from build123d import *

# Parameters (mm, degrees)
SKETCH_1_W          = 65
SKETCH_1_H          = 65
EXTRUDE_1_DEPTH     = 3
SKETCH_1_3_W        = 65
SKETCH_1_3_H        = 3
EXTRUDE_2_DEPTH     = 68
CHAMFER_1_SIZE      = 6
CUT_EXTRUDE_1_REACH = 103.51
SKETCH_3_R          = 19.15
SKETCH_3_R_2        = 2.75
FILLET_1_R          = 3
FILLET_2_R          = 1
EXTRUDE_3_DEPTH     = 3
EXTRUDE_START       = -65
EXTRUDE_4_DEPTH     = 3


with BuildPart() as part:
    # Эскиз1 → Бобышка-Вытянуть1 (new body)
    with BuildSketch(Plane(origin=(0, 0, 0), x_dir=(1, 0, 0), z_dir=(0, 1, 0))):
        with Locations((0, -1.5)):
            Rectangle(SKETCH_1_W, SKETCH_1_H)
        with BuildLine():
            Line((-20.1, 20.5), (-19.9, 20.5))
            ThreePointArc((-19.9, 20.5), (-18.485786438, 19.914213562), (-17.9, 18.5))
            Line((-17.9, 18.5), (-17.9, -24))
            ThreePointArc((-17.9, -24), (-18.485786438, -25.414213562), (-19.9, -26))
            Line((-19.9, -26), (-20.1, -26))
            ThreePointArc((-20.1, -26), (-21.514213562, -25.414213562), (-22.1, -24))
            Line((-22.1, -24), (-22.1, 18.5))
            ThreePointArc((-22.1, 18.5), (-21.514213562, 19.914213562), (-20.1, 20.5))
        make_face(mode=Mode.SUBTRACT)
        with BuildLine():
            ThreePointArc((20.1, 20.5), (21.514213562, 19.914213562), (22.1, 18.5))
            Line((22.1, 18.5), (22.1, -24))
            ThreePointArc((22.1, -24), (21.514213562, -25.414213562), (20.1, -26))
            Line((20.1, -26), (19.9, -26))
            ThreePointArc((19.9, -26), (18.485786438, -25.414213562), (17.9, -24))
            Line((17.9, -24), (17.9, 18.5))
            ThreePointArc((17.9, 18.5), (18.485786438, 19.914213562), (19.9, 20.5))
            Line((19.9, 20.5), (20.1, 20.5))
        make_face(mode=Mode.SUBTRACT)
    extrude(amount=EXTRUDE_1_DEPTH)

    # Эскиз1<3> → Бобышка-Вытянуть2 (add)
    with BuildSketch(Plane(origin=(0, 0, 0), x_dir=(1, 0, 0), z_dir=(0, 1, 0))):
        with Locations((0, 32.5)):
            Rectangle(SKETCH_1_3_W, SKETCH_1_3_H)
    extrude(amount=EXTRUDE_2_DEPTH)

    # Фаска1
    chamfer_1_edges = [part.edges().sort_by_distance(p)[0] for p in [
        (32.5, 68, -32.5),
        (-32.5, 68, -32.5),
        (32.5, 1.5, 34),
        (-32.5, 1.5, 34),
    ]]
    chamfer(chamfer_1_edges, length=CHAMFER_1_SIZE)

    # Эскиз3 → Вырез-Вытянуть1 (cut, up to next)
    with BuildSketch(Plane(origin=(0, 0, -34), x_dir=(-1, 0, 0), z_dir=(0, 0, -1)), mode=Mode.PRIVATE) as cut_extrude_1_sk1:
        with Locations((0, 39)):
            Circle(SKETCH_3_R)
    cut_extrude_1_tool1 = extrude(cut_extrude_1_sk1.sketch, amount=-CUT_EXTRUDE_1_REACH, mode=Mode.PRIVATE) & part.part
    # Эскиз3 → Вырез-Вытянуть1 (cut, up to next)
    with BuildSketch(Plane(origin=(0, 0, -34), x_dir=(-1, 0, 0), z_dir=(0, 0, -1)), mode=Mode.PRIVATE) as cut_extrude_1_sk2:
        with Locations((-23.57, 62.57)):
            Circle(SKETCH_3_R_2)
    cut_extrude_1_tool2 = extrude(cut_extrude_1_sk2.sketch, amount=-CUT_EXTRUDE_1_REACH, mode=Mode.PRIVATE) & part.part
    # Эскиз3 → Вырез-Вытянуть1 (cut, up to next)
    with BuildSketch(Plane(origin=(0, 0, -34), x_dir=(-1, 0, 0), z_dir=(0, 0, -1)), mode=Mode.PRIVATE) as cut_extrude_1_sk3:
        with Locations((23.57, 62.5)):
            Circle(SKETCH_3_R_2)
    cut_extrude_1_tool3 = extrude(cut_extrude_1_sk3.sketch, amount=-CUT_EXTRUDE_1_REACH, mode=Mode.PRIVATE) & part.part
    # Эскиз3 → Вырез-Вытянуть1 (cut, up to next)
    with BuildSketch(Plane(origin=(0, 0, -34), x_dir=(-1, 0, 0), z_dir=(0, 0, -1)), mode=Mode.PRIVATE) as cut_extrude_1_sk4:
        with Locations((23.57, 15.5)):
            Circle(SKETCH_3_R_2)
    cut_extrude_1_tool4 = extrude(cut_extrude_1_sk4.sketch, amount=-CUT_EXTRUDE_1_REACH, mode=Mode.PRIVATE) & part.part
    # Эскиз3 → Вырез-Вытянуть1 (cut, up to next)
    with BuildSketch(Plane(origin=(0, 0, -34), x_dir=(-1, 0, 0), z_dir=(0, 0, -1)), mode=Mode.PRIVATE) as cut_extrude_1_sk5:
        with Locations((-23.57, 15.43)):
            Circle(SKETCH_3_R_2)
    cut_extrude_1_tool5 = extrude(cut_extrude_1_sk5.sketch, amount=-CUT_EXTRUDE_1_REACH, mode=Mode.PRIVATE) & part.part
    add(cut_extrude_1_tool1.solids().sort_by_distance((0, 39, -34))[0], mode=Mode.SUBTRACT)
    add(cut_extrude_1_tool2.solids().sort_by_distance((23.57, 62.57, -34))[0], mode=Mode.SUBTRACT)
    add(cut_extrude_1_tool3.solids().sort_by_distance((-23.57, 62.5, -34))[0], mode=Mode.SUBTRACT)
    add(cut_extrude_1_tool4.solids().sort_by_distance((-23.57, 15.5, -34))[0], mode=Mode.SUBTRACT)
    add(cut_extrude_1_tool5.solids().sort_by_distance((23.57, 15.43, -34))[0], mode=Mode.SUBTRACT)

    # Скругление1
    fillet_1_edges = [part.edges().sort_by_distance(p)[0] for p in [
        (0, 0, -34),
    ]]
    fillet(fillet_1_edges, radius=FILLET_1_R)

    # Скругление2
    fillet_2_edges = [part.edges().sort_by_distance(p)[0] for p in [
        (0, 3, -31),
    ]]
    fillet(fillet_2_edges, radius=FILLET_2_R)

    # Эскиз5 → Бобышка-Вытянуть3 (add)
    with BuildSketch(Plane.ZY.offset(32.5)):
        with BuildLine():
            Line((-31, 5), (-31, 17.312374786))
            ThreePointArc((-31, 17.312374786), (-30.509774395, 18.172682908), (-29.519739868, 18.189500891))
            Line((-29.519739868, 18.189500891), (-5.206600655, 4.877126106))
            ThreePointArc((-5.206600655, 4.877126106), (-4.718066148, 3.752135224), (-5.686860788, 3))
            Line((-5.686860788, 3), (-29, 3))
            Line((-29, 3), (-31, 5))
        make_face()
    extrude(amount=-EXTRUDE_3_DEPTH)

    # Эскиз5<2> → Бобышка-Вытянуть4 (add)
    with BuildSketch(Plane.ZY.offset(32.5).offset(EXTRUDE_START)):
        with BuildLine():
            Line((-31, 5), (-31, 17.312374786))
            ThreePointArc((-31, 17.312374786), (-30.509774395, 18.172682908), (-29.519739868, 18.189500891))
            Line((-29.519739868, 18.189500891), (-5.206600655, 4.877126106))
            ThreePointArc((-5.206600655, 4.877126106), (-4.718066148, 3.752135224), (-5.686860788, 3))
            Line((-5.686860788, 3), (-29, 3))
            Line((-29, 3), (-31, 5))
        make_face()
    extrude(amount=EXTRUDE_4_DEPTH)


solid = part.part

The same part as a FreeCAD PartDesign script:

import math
import FreeCAD as App
import Part
import Sketcher
from FreeCAD import Vector
Q = App.Units.Quantity


def edges_at(feature, points):
    """Names of the edges that pass closest to the given points."""
    edges = feature.Shape.Edges
    near = lambda p: min(range(len(edges)), key=lambda i: edges[i].distToShape(Part.Vertex(*p))[0])
    return sorted({f"Edge{near(p) + 1}" for p in points})


def add_polygon(sketch, points):
    """Adds a closed chain of lines whose ends are joined by coincident constraints."""
    first, n = sketch.GeometryCount, len(points)
    for a, b in zip(points, points[1:] + points[:1]):
        sketch.addGeometry(Part.LineSegment(App.Vector(*a, 0), App.Vector(*b, 0)), False)
    for i in range(n):
        sketch.addConstraint(Sketcher.Constraint("Coincident", first + i, 2, first + (i + 1) % n, 1))

doc = App.newDocument("Part")
body = doc.addObject("PartDesign::Body", "Body")

# Sketch on XZ plane
sketch1 = body.newObject("Sketcher::SketchObject", "Sketch")
sketch1.AttachmentSupport = (doc.getObject("XZ_Plane"), [""])
sketch1.MapMode = "FlatFace"
add_polygon(sketch1, [(-32.5, -31), (-32.5, 34), (32.5, 34), (32.5, -31)])  # lines 0-3
sketch1.addGeometry(Part.ArcOfCircle(Part.Circle(Vector(-20.1, -18.5, 0), Vector(0, 0, 1), 2), math.radians(-180), math.radians(-90)), False)  # 4
sketch1.addGeometry(Part.LineSegment(Vector(-20.1, -20.5, 0), Vector(-19.9, -20.5, 0)), False)  # 5
sketch1.addGeometry(Part.ArcOfCircle(Part.Circle(Vector(-19.9, -18.5, 0), Vector(0, 0, 1), 2), math.radians(-90), math.radians(0)), False)  # 6
sketch1.addGeometry(Part.LineSegment(Vector(-17.9, -18.5, 0), Vector(-17.9, 24, 0)), False)  # 7
sketch1.addGeometry(Part.ArcOfCircle(Part.Circle(Vector(-19.9, 24, 0), Vector(0, 0, 1), 2), math.radians(0), math.radians(90)), False)  # 8
sketch1.addGeometry(Part.LineSegment(Vector(-19.9, 26, 0), Vector(-20.1, 26, 0)), False)  # 9
sketch1.addGeometry(Part.ArcOfCircle(Part.Circle(Vector(-20.1, 24, 0), Vector(0, 0, 1), 2), math.radians(90), math.radians(180)), False)  # 10
sketch1.addGeometry(Part.LineSegment(Vector(-22.1, 24, 0), Vector(-22.1, -18.5, 0)), False)  # 11
sketch1.addGeometry(Part.LineSegment(Vector(19.9, -20.5, 0), Vector(20.1, -20.5, 0)), False)  # 12
sketch1.addGeometry(Part.ArcOfCircle(Part.Circle(Vector(20.1, -18.5, 0), Vector(0, 0, 1), 2), math.radians(-90), math.radians(0)), False)  # 13
sketch1.addGeometry(Part.LineSegment(Vector(22.1, -18.5, 0), Vector(22.1, 24, 0)), False)  # 14
sketch1.addGeometry(Part.ArcOfCircle(Part.Circle(Vector(20.1, 24, 0), Vector(0, 0, 1), 2), math.radians(0), math.radians(90)), False)  # 15
sketch1.addGeometry(Part.LineSegment(Vector(20.1, 26, 0), Vector(19.9, 26, 0)), False)  # 16
sketch1.addGeometry(Part.ArcOfCircle(Part.Circle(Vector(19.9, 24, 0), Vector(0, 0, 1), 2), math.radians(90), math.radians(180)), False)  # 17
sketch1.addGeometry(Part.LineSegment(Vector(17.9, 24, 0), Vector(17.9, -18.5, 0)), False)  # 18
sketch1.addGeometry(Part.ArcOfCircle(Part.Circle(Vector(19.9, -18.5, 0), Vector(0, 0, 1), 2), math.radians(-180), math.radians(-90)), False)  # 19
sketch1.addConstraint(Sketcher.Constraint("Tangent", 4, 2, 5, 1))
sketch1.addConstraint(Sketcher.Constraint("Tangent", 5, 2, 6, 1))
sketch1.addConstraint(Sketcher.Constraint("Tangent", 6, 2, 7, 1))
sketch1.addConstraint(Sketcher.Constraint("Tangent", 7, 2, 8, 1))
sketch1.addConstraint(Sketcher.Constraint("Tangent", 8, 2, 9, 1))
sketch1.addConstraint(Sketcher.Constraint("Tangent", 9, 2, 10, 1))
sketch1.addConstraint(Sketcher.Constraint("Tangent", 10, 2, 11, 1))
sketch1.addConstraint(Sketcher.Constraint("Tangent", 11, 2, 4, 1))
sketch1.addConstraint(Sketcher.Constraint("Tangent", 12, 2, 13, 1))
sketch1.addConstraint(Sketcher.Constraint("Tangent", 13, 2, 14, 1))
sketch1.addConstraint(Sketcher.Constraint("Tangent", 14, 2, 15, 1))
sketch1.addConstraint(Sketcher.Constraint("Tangent", 15, 2, 16, 1))
sketch1.addConstraint(Sketcher.Constraint("Tangent", 16, 2, 17, 1))
sketch1.addConstraint(Sketcher.Constraint("Tangent", 17, 2, 18, 1))
sketch1.addConstraint(Sketcher.Constraint("Tangent", 18, 2, 19, 1))
sketch1.addConstraint(Sketcher.Constraint("Tangent", 19, 2, 12, 1))
sketch1.addConstraint(Sketcher.Constraint("Vertical", 0))
sketch1.addConstraint(Sketcher.Constraint("Horizontal", 1))
sketch1.addConstraint(Sketcher.Constraint("Vertical", 2))
sketch1.addConstraint(Sketcher.Constraint("Horizontal", 3))
sketch1.addConstraint(Sketcher.Constraint("Horizontal", 5))
sketch1.addConstraint(Sketcher.Constraint("Vertical", 7))
sketch1.addConstraint(Sketcher.Constraint("Horizontal", 9))
sketch1.addConstraint(Sketcher.Constraint("Vertical", 11))
sketch1.addConstraint(Sketcher.Constraint("Horizontal", 12))
sketch1.addConstraint(Sketcher.Constraint("Vertical", 14))
sketch1.addConstraint(Sketcher.Constraint("Horizontal", 16))
sketch1.addConstraint(Sketcher.Constraint("Vertical", 18))
sketch1.addConstraint(Sketcher.Constraint("Equal", 4, 6))
sketch1.addConstraint(Sketcher.Constraint("Equal", 6, 8))
sketch1.addConstraint(Sketcher.Constraint("Equal", 8, 10))
sketch1.addConstraint(Sketcher.Constraint("Equal", 10, 13))
sketch1.addConstraint(Sketcher.Constraint("Equal", 13, 15))
sketch1.addConstraint(Sketcher.Constraint("Equal", 15, 17))
sketch1.addConstraint(Sketcher.Constraint("Equal", 17, 19))
sketch1.addConstraint(Sketcher.Constraint("Symmetric", 4, 3, 13, 3, -2))
sketch1.addConstraint(Sketcher.Constraint("Symmetric", 8, 3, 17, 3, -2))
sketch1.addConstraint(Sketcher.Constraint("Equal", 3, 0))
sketch1.addConstraint(Sketcher.Constraint("Radius", 4, 2.0))
sketch1.addConstraint(Sketcher.Constraint("DistanceX", 1, 1, 1, 2, 65.0))
sketch1.addConstraint(Sketcher.Constraint("DistanceX", 5, 1, 5, 2, 0.2))
sketch1.addConstraint(Sketcher.Constraint("DistanceY", 7, 1, 7, 2, 42.5))
sketch1.addConstraint(Sketcher.Constraint("DistanceY", -1, 1, 8, 3, 24.0))
sketch1.addConstraint(Sketcher.Constraint("DistanceY", -1, 1, 0, 2, 34.0))
sketch1.addConstraint(Sketcher.Constraint("DistanceX", 6, 3, 13, 3, 40.0))
sketch1.addConstraint(Sketcher.Constraint("DistanceX", 0, 2, -1, 1, 32.5))
pad1 = body.newObject("PartDesign::Pad", "Pad")
pad1.Profile = sketch1
pad1.Length = 3
pad1.Reversed = True

# Sketch on XZ plane
sketch2 = body.newObject("Sketcher::SketchObject", "Sketch001")
sketch2.AttachmentSupport = (doc.getObject("XZ_Plane"), [""])
sketch2.MapMode = "FlatFace"
add_polygon(sketch2, [(-32.5, -34), (-32.5, -31), (32.5, -31), (32.5, -34)])  # lines 0-3
sketch2.addConstraint(Sketcher.Constraint("Vertical", 0))
sketch2.addConstraint(Sketcher.Constraint("Horizontal", 1))
sketch2.addConstraint(Sketcher.Constraint("Vertical", 2))
sketch2.addConstraint(Sketcher.Constraint("Horizontal", 3))
sketch2.addConstraint(Sketcher.Constraint("DistanceX", 1, 1, 1, 2, 65.0))
sketch2.addConstraint(Sketcher.Constraint("DistanceY", 0, 1, 0, 2, 3.0))
sketch2.addConstraint(Sketcher.Constraint("DistanceY", 0, 2, -1, 1, 31.0))
sketch2.addConstraint(Sketcher.Constraint("DistanceX", 0, 2, -1, 1, 32.5))
pad2 = body.newObject("PartDesign::Pad", "Pad001")
pad2.Profile = sketch2
pad2.Length = 68
pad2.Reversed = True
doc.recompute()

chamfer = body.newObject("PartDesign::Chamfer", "Chamfer")
chamfer.Base = (pad2, edges_at(pad2, [
    (32.5, 68, -32.5),
    (-32.5, 68, -32.5),
    (32.5, 1.5, 34),
    (-32.5, 1.5, 34),
]))
chamfer.Size = 6

# Sketch on XY plane
sketch3 = body.newObject("Sketcher::SketchObject", "Sketch002")
sketch3.AttachmentSupport = (doc.getObject("XY_Plane"), [""])
sketch3.MapMode = "FlatFace"
sketch3.AttachmentOffset = App.Placement(Vector(0, 0, -34), App.Rotation())
sketch3.addGeometry(Part.Circle(Vector(0, 39, 0), Vector(0, 0, 1), 19), False)
sketch3.addConstraint(Sketcher.Constraint("PointOnObject", 0, 3, -2))
sketch3.addConstraint(Sketcher.Constraint("Diameter", 0, 38.3))
sketch3.addConstraint(Sketcher.Constraint("DistanceY", -1, 1, 0, 3, 39.0))
pocket1 = body.newObject("PartDesign::Pocket", "Pocket")
pocket1.Profile = sketch3
pocket1.Type = "UpToFirst"
pocket1.Reversed = True

# Sketch on XY plane
sketch4 = body.newObject("Sketcher::SketchObject", "Sketch003")
sketch4.AttachmentSupport = (doc.getObject("XY_Plane"), [""])
sketch4.MapMode = "FlatFace"
sketch4.AttachmentOffset = App.Placement(Vector(0, 0, -34), App.Rotation())
sketch4.addGeometry(Part.Circle(Vector(23.6, 62.6, 0), Vector(0, 0, 1), 2.8), False)
sketch4.addConstraint(Sketcher.Constraint("Diameter", 0, 5.5))
sketch4.addConstraint(Sketcher.Constraint("DistanceX", -1, 1, 0, 3, 23.57))
sketch4.addConstraint(Sketcher.Constraint("DistanceY", -1, 1, 0, 3, 62.57))
pocket2 = body.newObject("PartDesign::Pocket", "Pocket001")
pocket2.Profile = sketch4
pocket2.Type = "UpToFirst"
pocket2.Reversed = True

# Sketch on XY plane
sketch5 = body.newObject("Sketcher::SketchObject", "Sketch004")
sketch5.AttachmentSupport = (doc.getObject("XY_Plane"), [""])
sketch5.MapMode = "FlatFace"
sketch5.AttachmentOffset = App.Placement(Vector(0, 0, -34), App.Rotation())
sketch5.addGeometry(Part.Circle(Vector(-23.6, 62.5, 0), Vector(0, 0, 1), 2.8), False)
sketch5.addConstraint(Sketcher.Constraint("Diameter", 0, 5.5))
sketch5.addConstraint(Sketcher.Constraint("DistanceY", -1, 1, 0, 3, 62.5))
sketch5.addConstraint(Sketcher.Constraint("DistanceX", 0, 3, -1, 1, 23.57))
pocket3 = body.newObject("PartDesign::Pocket", "Pocket002")
pocket3.Profile = sketch5
pocket3.Type = "UpToFirst"
pocket3.Reversed = True

# Sketch on XY plane
sketch6 = body.newObject("Sketcher::SketchObject", "Sketch005")
sketch6.AttachmentSupport = (doc.getObject("XY_Plane"), [""])
sketch6.MapMode = "FlatFace"
sketch6.AttachmentOffset = App.Placement(Vector(0, 0, -34), App.Rotation())
sketch6.addGeometry(Part.Circle(Vector(-23.6, 15.5, 0), Vector(0, 0, 1), 2.8), False)
sketch6.addConstraint(Sketcher.Constraint("Diameter", 0, 5.5))
sketch6.addConstraint(Sketcher.Constraint("DistanceY", -1, 1, 0, 3, 15.5))
sketch6.addConstraint(Sketcher.Constraint("DistanceX", 0, 3, -1, 1, 23.57))
pocket4 = body.newObject("PartDesign::Pocket", "Pocket003")
pocket4.Profile = sketch6
pocket4.Type = "UpToFirst"
pocket4.Reversed = True

# Sketch on XY plane
sketch7 = body.newObject("Sketcher::SketchObject", "Sketch006")
sketch7.AttachmentSupport = (doc.getObject("XY_Plane"), [""])
sketch7.MapMode = "FlatFace"
sketch7.AttachmentOffset = App.Placement(Vector(0, 0, -34), App.Rotation())
sketch7.addGeometry(Part.Circle(Vector(23.6, 15.4, 0), Vector(0, 0, 1), 2.8), False)
sketch7.addConstraint(Sketcher.Constraint("Diameter", 0, 5.5))
sketch7.addConstraint(Sketcher.Constraint("DistanceX", -1, 1, 0, 3, 23.57))
sketch7.addConstraint(Sketcher.Constraint("DistanceY", -1, 1, 0, 3, 15.43))
pocket5 = body.newObject("PartDesign::Pocket", "Pocket004")
pocket5.Profile = sketch7
pocket5.Type = "UpToFirst"
pocket5.Reversed = True
doc.recompute()

fillet = body.newObject("PartDesign::Fillet", "Fillet")
fillet.Base = (pocket5, edges_at(pocket5, [(0, 0, -34)]))
fillet.Radius = 3
doc.recompute()

fillet2 = body.newObject("PartDesign::Fillet", "Fillet001")
fillet2.Base = (fillet, edges_at(fillet, [(0, 3, -31)]))
fillet2.Radius = 1

# Sketch on YZ plane
sketch8 = body.newObject("Sketcher::SketchObject", "Sketch007")
sketch8.AttachmentSupport = (doc.getObject("YZ_Plane"), [""])
sketch8.MapMode = "FlatFace"
sketch8.AttachmentOffset = App.Placement(Vector(0, 0, -32.5), App.Rotation())
sketch8.addGeometry(Part.LineSegment(Vector(17.3, -31, 0), Vector(5, -31, 0)), False)
sketch8.addGeometry(Part.LineSegment(Vector(5, -31, 0), Vector(3, -29, 0)), False)
sketch8.addGeometry(Part.LineSegment(Vector(3, -29, 0), Vector(3, -5.7, 0)), False)
sketch8.addGeometry(Part.ArcOfCircle(Part.Circle(Vector(4, -5.7, 0), Vector(0, 0, 1), 1), math.radians(29), math.radians(180)), False)
sketch8.addGeometry(Part.LineSegment(Vector(4.9, -5.2, 0), Vector(18.2, -29.5, 0)), False)
sketch8.addGeometry(Part.ArcOfCircle(Part.Circle(Vector(17.3, -30, 0), Vector(0, 0, 1), 1), math.radians(-90), math.radians(29)), False)
sketch8.addConstraint(Sketcher.Constraint("Coincident", 0, 2, 1, 1))
sketch8.addConstraint(Sketcher.Constraint("Coincident", 1, 2, 2, 1))
sketch8.addConstraint(Sketcher.Constraint("Tangent", 2, 2, 3, 2))
sketch8.addConstraint(Sketcher.Constraint("Tangent", 3, 1, 4, 1))
sketch8.addConstraint(Sketcher.Constraint("Tangent", 4, 2, 5, 2))
sketch8.addConstraint(Sketcher.Constraint("Tangent", 5, 1, 0, 1))
sketch8.addConstraint(Sketcher.Constraint("Horizontal", 0))
sketch8.addConstraint(Sketcher.Constraint("Vertical", 2))
sketch8.addConstraint(Sketcher.Constraint("Equal", 3, 5))
sketch8.addConstraint(Sketcher.Constraint("Radius", 3, 1.0))
sketch8.addConstraint(Sketcher.Constraint("Angle", 1, Q("135 deg")))
sketch8.addConstraint(Sketcher.Constraint("DistanceX", -1, 1, 3, 3, 4.0))
sketch8.addConstraint(Sketcher.Constraint("DistanceY", 5, 3, -1, 1, 30.0))
sketch8.addConstraint(Sketcher.Constraint("DistanceX", -1, 1, 0, 2, 5.0))
sketch8.addConstraint(Sketcher.Constraint("DistanceY", 2, 1, 2, 2, 23.313139))
sketch8.addConstraint(Sketcher.Constraint("DistanceY", 3, 1, -1, 1, 5.206601))
pad3 = body.newObject("PartDesign::Pad", "Pad002")
pad3.Profile = sketch8
pad3.Length = 3

# Sketch on YZ plane
sketch9 = body.newObject("Sketcher::SketchObject", "Sketch008")
sketch9.AttachmentSupport = (doc.getObject("YZ_Plane"), [""])
sketch9.MapMode = "FlatFace"
sketch9.AttachmentOffset = App.Placement(Vector(0, 0, 32.5), App.Rotation())
sketch9.addGeometry(Part.LineSegment(Vector(17.3, -31, 0), Vector(5, -31, 0)), False)
sketch9.addGeometry(Part.LineSegment(Vector(5, -31, 0), Vector(3, -29, 0)), False)
sketch9.addGeometry(Part.LineSegment(Vector(3, -29, 0), Vector(3, -5.7, 0)), False)
sketch9.addGeometry(Part.ArcOfCircle(Part.Circle(Vector(4, -5.7, 0), Vector(0, 0, 1), 1), math.radians(29), math.radians(180)), False)
sketch9.addGeometry(Part.LineSegment(Vector(4.9, -5.2, 0), Vector(18.2, -29.5, 0)), False)
sketch9.addGeometry(Part.ArcOfCircle(Part.Circle(Vector(17.3, -30, 0), Vector(0, 0, 1), 1), math.radians(-90), math.radians(29)), False)
sketch9.addConstraint(Sketcher.Constraint("Coincident", 0, 2, 1, 1))
sketch9.addConstraint(Sketcher.Constraint("Coincident", 1, 2, 2, 1))
sketch9.addConstraint(Sketcher.Constraint("Tangent", 2, 2, 3, 2))
sketch9.addConstraint(Sketcher.Constraint("Tangent", 3, 1, 4, 1))
sketch9.addConstraint(Sketcher.Constraint("Tangent", 4, 2, 5, 2))
sketch9.addConstraint(Sketcher.Constraint("Tangent", 5, 1, 0, 1))
sketch9.addConstraint(Sketcher.Constraint("Horizontal", 0))
sketch9.addConstraint(Sketcher.Constraint("Vertical", 2))
sketch9.addConstraint(Sketcher.Constraint("Equal", 3, 5))
sketch9.addConstraint(Sketcher.Constraint("Radius", 3, 1.0))
sketch9.addConstraint(Sketcher.Constraint("Angle", 1, Q("135 deg")))
sketch9.addConstraint(Sketcher.Constraint("DistanceX", -1, 1, 3, 3, 4.0))
sketch9.addConstraint(Sketcher.Constraint("DistanceY", 5, 3, -1, 1, 30.0))
sketch9.addConstraint(Sketcher.Constraint("DistanceX", -1, 1, 0, 2, 5.0))
sketch9.addConstraint(Sketcher.Constraint("DistanceY", 2, 1, 2, 2, 23.313139))
sketch9.addConstraint(Sketcher.Constraint("DistanceY", 3, 1, -1, 1, 5.206601))
pad4 = body.newObject("PartDesign::Pad", "Pad003")
pad4.Profile = sketch9
pad4.Length = 3
pad4.Reversed = True

doc.recompute()
